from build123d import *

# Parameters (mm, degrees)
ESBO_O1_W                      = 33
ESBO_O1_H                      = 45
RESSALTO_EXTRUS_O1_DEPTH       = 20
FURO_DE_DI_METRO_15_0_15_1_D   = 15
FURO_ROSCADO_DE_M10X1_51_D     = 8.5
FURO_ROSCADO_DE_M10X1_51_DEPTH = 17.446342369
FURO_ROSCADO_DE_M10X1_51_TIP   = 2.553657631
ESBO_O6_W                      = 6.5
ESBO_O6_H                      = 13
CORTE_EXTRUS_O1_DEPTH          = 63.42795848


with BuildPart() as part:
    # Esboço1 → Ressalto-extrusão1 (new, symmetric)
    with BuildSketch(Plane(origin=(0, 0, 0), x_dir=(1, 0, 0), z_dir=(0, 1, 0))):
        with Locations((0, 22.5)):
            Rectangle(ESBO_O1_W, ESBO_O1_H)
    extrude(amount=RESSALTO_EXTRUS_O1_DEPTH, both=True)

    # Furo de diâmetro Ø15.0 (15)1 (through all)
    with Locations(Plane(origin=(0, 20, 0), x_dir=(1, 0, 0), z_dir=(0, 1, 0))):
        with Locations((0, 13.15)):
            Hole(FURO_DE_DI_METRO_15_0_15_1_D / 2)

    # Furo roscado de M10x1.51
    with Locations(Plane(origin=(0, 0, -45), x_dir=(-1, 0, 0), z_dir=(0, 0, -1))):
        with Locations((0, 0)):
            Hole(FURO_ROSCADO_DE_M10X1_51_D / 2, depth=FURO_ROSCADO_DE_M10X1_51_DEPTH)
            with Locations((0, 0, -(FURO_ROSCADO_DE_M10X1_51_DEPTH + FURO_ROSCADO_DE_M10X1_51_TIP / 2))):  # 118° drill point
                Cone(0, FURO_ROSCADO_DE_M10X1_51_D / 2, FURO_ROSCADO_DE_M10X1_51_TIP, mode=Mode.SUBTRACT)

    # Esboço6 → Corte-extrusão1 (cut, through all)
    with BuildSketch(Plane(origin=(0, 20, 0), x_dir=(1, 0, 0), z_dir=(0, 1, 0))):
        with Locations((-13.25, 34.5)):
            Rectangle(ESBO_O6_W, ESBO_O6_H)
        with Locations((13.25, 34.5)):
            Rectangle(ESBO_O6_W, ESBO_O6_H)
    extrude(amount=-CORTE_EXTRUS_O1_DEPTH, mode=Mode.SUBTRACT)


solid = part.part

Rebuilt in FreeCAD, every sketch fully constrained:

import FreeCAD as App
import Part
import Sketcher
from FreeCAD import Vector


def add_polygon(sketch, points):
    """Adds a closed chain of lines whose ends are joined by coincident constraints."""
    first, n = sketch.GeometryCount, len(points)
    for a, b in zip(points, points[1:] + points[:1]):
        sketch.addGeometry(Part.LineSegment(App.Vector(*a, 0), App.Vector(*b, 0)), False)
    for i in range(n):
        sketch.addConstraint(Sketcher.Constraint("Coincident", first + i, 2, first + (i + 1) % n, 1))

doc = App.newDocument("Part")
params = doc.addObject("Spreadsheet::Sheet", "Params")
for row, (alias, value) in enumerate([
    ("sketch1_width", "33 mm"),
    ("sketch1_height", "45 mm"),
    ("pad1_length", "40 mm"),
    ("sketch2_diameter", "15 mm"),
    ("hole_diameter", "15 mm"),
    ("sketch3_diameter", "8.5 mm"),
    ("hole2_diameter", "8.5 mm"),
    ("hole2_depth", "17.446342 mm"),
    ("sketch4_height", "13 mm"),
    ("sketch4_width", "6.5 mm"),
], start=1):
    params.set(f"A{row}", alias)
    params.set(f"B{row}", "=" + value)
    params.setAlias(f"B{row}", alias)

body = doc.addObject("PartDesign::Body", "Body")

# Sketch on XZ plane
sketch1 = body.newObject("Sketcher::SketchObject", "Sketch")
sketch1.AttachmentSupport = (doc.getObject("XZ_Plane"), [""])
sketch1.MapMode = "FlatFace"
add_polygon(sketch1, [(-16, -45), (-16, 0), (16, 0), (16, -45)])  # lines 0-3
sketch1.addConstraint(Sketcher.Constraint("Vertical", 0))
sketch1.addConstraint(Sketcher.Constraint("Horizontal", 1))
sketch1.addConstraint(Sketcher.Constraint("Vertical", 2))
sketch1.addConstraint(Sketcher.Constraint("Horizontal", 3))
sketch1.addConstraint(Sketcher.Constraint("Symmetric", 0, 2, 1, 2, -1, 1))
sketch1.addConstraint(Sketcher.Constraint("DistanceX", 1, 1, 1, 2, 33.0))
sketch1.addConstraint(Sketcher.Constraint("DistanceY", 0, 1, 0, 2, 45.0))
sketch1.setExpression("Constraints[9]", "Params.sketch1_width")
sketch1.setExpression("Constraints[10]", "Params.sketch1_height")
pad1 = body.newObject("PartDesign::Pad", "Pad")
pad1.Profile = sketch1
pad1.setExpression("Length", "Params.pad1_length")
pad1.Midplane = True

# Sketch on XZ plane
sketch2 = body.newObject("Sketcher::SketchObject", "Sketch001")
sketch2.AttachmentSupport = (doc.getObject("XZ_Plane"), [""])
sketch2.MapMode = "FlatFace"
sketch2.AttachmentOffset = App.Placement(Vector(0, 0, -20), App.Rotation())
sketch2.addGeometry(Part.Circle(Vector(0, -13, 0), Vector(0, 0, 1), 8), False)
sketch2.addConstraint(Sketcher.Constraint("PointOnObject", 0, 3, -2))
sketch2.addConstraint(Sketcher.Constraint("Diameter", 0, 15.0))
sketch2.addConstraint(Sketcher.Constraint("DistanceY", 0, 3, -1, 1, 13.15))
sketch2.setExpression("Constraints[1]", "Params.sketch2_diameter")
doc.recompute()
hole = body.newObject("PartDesign::Hole", "Hole")
hole.Profile = sketch2
hole.ThreadType = "None"
hole.setExpression("Diameter", "Params.hole_diameter")
hole.DepthType = "ThroughAll"
hole.Reversed = True

# Sketch on XY plane
sketch3 = body.newObject("Sketcher::SketchObject", "Sketch002")
sketch3.AttachmentSupport = (doc.getObject("XY_Plane"), [""])
sketch3.MapMode = "FlatFace"
sketch3.AttachmentOffset = App.Placement(Vector(0, 0, -45), App.Rotation())
sketch3.addGeometry(Part.Circle(Vector(0, 0, 0), Vector(0, 0, 1), 4.2), False)
sketch3.addConstraint(Sketcher.Constraint("Coincident", 0, 3, -1, 1))
sketch3.addConstraint(Sketcher.Constraint("Diameter", 0, 8.5))
sketch3.setExpression("Constraints[1]", "Params.sketch3_diameter")
doc.recompute()
hole2 = body.newObject("PartDesign::Hole", "Hole001")
hole2.Profile = sketch3
hole2.ThreadType = "None"
hole2.setExpression("Diameter", "Params.hole2_diameter")
hole2.DepthType = "Dimension"
hole2.setExpression("Depth", "Params.hole2_depth")
hole2.DrillPoint = "Angled"
hole2.DrillPointAngle = 118
hole2.Reversed = True

# Sketch on XZ plane
sketch4 = body.newObject("Sketcher::SketchObject", "Sketch003")
sketch4.AttachmentSupport = (doc.getObject("XZ_Plane"), [""])
sketch4.MapMode = "FlatFace"
sketch4.AttachmentOffset = App.Placement(Vector(0, 0, -20), App.Rotation())
add_polygon(sketch4, [(-16, -41), (-16, -28), (-10, -28), (-10, -41)])  # lines 0-3
add_polygon(sketch4, [(10, -41), (10, -28), (16, -28), (16, -41)])  # lines 4-7
sketch4.addConstraint(Sketcher.Constraint("Vertical", 0))
sketch4.addConstraint(Sketcher.Constraint("Horizontal", 1))
sketch4.addConstraint(Sketcher.Constraint("Vertical", 2))
sketch4.addConstraint(Sketcher.Constraint("Horizontal", 3))
sketch4.addConstraint(Sketcher.Constraint("Vertical", 4))
sketch4.addConstraint(Sketcher.Constraint("Horizontal", 5))
sketch4.addConstraint(Sketcher.Constraint("Vertical", 6))
sketch4.addConstraint(Sketcher.Constraint("Horizontal", 7))
sketch4.addConstraint(Sketcher.Constraint("Symmetric", 1, 2, 4, 2, -2))
sketch4.addConstraint(Sketcher.Constraint("Symmetric", 3, 2, 6, 2, -2))
sketch4.addConstraint(Sketcher.Constraint("DistanceY", 0, 1, 0, 2, 13.0))
sketch4.addConstraint(Sketcher.Constraint("DistanceX", 1, 1, 1, 2, 6.5))
sketch4.addConstraint(Sketcher.Constraint("DistanceY", 0, 2, -1, 1, 28.0))
sketch4.addConstraint(Sketcher.Constraint("DistanceX", 1, 2, -1, 1, 10.0))
sketch4.setExpression("Constraints[18]", "Params.sketch4_height")
sketch4.setExpression("Constraints[19]", "Params.sketch4_width")
pocket1 = body.newObject("PartDesign::Pocket", "Pocket")
pocket1.Profile = sketch4
pocket1.Type = "ThroughAll"
pocket1.Reversed = True

doc.recompute()
